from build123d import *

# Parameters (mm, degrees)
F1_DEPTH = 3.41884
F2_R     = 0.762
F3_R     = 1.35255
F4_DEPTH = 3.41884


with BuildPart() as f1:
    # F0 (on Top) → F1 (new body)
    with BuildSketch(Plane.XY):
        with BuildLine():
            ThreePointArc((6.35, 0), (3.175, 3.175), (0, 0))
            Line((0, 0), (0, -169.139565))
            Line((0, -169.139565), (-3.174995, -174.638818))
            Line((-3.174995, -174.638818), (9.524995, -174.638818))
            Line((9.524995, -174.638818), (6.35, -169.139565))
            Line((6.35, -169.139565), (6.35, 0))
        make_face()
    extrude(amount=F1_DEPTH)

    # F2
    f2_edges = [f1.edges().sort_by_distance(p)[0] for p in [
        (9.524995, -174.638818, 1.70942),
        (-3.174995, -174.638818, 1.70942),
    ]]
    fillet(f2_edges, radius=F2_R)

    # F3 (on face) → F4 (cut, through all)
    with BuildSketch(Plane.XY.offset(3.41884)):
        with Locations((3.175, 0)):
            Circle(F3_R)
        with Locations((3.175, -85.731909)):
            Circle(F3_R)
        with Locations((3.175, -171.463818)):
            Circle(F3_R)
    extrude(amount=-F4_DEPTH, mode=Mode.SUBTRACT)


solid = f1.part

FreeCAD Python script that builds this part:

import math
import FreeCAD as App
import Part
import Sketcher
from FreeCAD import Vector
Q = App.Units.Quantity


def edges_at(feature, points):
    """Names of the edges that pass closest to the given points."""
    edges = feature.Shape.Edges
    near = lambda p: min(range(len(edges)), key=lambda i: edges[i].distToShape(Part.Vertex(*p))[0])
    return sorted({f"Edge{near(p) + 1}" for p in points})

doc = App.newDocument("Part")
params = doc.addObject("Spreadsheet::Sheet", "Params")
for row, (alias, value) in enumerate([
    ("sketch1_radius", "0.125 in"),
    ("pad1_length", "0.1346 in"),
    ("fillet_radius", "0.03 in"),
], start=1):
    params.set(f"A{row}", alias)
    params.set(f"B{row}", "=" + value)
    params.setAlias(f"B{row}", alias)

body = doc.addObject("PartDesign::Body", "Body")

sketch1 = body.newObject("Sketcher::SketchObject", "Sketch")
sketch1.AttachmentSupport = (doc.getObject("XY_Plane"), [""])
sketch1.MapMode = "FlatFace"
sketch1.addGeometry([
    Part.ArcOfCircle(Part.Circle(Vector(3.175, 0, 0), Vector(0, 0, 1), 3.175), math.radians(0), math.radians(180)),
    Part.LineSegment(Vector(0, 0, 0), Vector(0, -169.139565, 0)),
    Part.LineSegment(Vector(0, -169.139565, 0), Vector(-3.174995, -174.638818, 0)),
    Part.LineSegment(Vector(-3.174995, -174.638818, 0), Vector(9.524995, -174.638818, 0)),
    Part.LineSegment(Vector(9.524995, -174.638818, 0), Vector(6.35, -169.139565, 0)),
    Part.LineSegment(Vector(6.35, -169.139565, 0), Vector(6.35, 0, 0)),
], False)
sketch1.addConstraint([
    Sketcher.Constraint("Tangent", 0, 2, 1, 1),
    Sketcher.Constraint("Coincident", 1, 2, 2, 1),
    Sketcher.Constraint("Coincident", 2, 2, 3, 1),
    Sketcher.Constraint("Coincident", 3, 2, 4, 1),
    Sketcher.Constraint("Coincident", 4, 2, 5, 1),
    Sketcher.Constraint("Tangent", 5, 2, 0, 1),
    Sketcher.Constraint("Vertical", 1),
    Sketcher.Constraint("Horizontal", 3),
    Sketcher.Constraint("Vertical", 5),
    Sketcher.Constraint("Coincident", 0, 2, -1, 1),
    Sketcher.Constraint("Horizontal", 1, 2, 4, 2),
    Sketcher.Constraint("Equal", 2, 4),
    Sketcher.Constraint("Angle", 2, Q("-119.999998 deg")),
    Sketcher.Constraint("Radius", 0, Q("0.125 in")),
    Sketcher.Constraint("DistanceX", 2, 2, 0, 3, Q("0.2499998 in")),
    Sketcher.Constraint("DistanceY", 1, 2, 1, 1, Q("169.139565 mm")),
])
sketch1.setExpression("Constraints[13]", "Params.sketch1_radius")
pad1 = body.newObject("PartDesign::Pad", "Pad")
pad1.Profile = sketch1
pad1.setExpression("Length", "Params.pad1_length")
doc.recompute()

fillet = body.newObject("PartDesign::Fillet", "Fillet")
fillet.Base = (pad1, edges_at(pad1, [(9.525, -174.639, 1.709), (-3.175, -174.639, 1.709)]))
fillet.setExpression("Radius", "Params.fillet_radius")

sketch2 = body.newObject("Sketcher::SketchObject", "Sketch001")
sketch2.AttachmentSupport = (doc.getObject("XY_Plane"), [""])
sketch2.MapMode = "FlatFace"
sketch2.AttachmentOffset = App.Placement(Vector(0, 0, 0.1346 * 25.4), App.Rotation())
sketch2.addGeometry([
    Part.Circle(Vector(3.175, 0, 0), Vector(0, 0, 1), 1.35255),
    Part.Circle(Vector(3.175, -85.731909, 0), Vector(0, 0, 1), 1.35255),
    Part.Circle(Vector(3.175, -171.463818, 0), Vector(0, 0, 1), 1.35255),
], False)
sketch2.addConstraint([
    Sketcher.Constraint("Equal", 0, 1),
    Sketcher.Constraint("Equal", 1, 2),
    Sketcher.Constraint("PointOnObject", 0, 3, -1),
    Sketcher.Constraint("Vertical", 0, 3, 1, 3),
    Sketcher.Constraint("Vertical", 1, 3, 2, 3),
    Sketcher.Constraint("Diameter", 0, Q("0.1065 in")),
    Sketcher.Constraint("DistanceX", -1, 1, 0, 3, Q("0.125 in")),
    Sketcher.Constraint("DistanceY", 1, 3, -1, 1, Q("85.731909 mm")),
    Sketcher.Constraint("DistanceY", 2, 3, -1, 1, Q("171.463818 mm")),
])
pocket1 = body.newObject("PartDesign::Pocket", "Pocket")
pocket1.Profile = sketch2
pocket1.Type = "ThroughAll"

doc.recompute()
